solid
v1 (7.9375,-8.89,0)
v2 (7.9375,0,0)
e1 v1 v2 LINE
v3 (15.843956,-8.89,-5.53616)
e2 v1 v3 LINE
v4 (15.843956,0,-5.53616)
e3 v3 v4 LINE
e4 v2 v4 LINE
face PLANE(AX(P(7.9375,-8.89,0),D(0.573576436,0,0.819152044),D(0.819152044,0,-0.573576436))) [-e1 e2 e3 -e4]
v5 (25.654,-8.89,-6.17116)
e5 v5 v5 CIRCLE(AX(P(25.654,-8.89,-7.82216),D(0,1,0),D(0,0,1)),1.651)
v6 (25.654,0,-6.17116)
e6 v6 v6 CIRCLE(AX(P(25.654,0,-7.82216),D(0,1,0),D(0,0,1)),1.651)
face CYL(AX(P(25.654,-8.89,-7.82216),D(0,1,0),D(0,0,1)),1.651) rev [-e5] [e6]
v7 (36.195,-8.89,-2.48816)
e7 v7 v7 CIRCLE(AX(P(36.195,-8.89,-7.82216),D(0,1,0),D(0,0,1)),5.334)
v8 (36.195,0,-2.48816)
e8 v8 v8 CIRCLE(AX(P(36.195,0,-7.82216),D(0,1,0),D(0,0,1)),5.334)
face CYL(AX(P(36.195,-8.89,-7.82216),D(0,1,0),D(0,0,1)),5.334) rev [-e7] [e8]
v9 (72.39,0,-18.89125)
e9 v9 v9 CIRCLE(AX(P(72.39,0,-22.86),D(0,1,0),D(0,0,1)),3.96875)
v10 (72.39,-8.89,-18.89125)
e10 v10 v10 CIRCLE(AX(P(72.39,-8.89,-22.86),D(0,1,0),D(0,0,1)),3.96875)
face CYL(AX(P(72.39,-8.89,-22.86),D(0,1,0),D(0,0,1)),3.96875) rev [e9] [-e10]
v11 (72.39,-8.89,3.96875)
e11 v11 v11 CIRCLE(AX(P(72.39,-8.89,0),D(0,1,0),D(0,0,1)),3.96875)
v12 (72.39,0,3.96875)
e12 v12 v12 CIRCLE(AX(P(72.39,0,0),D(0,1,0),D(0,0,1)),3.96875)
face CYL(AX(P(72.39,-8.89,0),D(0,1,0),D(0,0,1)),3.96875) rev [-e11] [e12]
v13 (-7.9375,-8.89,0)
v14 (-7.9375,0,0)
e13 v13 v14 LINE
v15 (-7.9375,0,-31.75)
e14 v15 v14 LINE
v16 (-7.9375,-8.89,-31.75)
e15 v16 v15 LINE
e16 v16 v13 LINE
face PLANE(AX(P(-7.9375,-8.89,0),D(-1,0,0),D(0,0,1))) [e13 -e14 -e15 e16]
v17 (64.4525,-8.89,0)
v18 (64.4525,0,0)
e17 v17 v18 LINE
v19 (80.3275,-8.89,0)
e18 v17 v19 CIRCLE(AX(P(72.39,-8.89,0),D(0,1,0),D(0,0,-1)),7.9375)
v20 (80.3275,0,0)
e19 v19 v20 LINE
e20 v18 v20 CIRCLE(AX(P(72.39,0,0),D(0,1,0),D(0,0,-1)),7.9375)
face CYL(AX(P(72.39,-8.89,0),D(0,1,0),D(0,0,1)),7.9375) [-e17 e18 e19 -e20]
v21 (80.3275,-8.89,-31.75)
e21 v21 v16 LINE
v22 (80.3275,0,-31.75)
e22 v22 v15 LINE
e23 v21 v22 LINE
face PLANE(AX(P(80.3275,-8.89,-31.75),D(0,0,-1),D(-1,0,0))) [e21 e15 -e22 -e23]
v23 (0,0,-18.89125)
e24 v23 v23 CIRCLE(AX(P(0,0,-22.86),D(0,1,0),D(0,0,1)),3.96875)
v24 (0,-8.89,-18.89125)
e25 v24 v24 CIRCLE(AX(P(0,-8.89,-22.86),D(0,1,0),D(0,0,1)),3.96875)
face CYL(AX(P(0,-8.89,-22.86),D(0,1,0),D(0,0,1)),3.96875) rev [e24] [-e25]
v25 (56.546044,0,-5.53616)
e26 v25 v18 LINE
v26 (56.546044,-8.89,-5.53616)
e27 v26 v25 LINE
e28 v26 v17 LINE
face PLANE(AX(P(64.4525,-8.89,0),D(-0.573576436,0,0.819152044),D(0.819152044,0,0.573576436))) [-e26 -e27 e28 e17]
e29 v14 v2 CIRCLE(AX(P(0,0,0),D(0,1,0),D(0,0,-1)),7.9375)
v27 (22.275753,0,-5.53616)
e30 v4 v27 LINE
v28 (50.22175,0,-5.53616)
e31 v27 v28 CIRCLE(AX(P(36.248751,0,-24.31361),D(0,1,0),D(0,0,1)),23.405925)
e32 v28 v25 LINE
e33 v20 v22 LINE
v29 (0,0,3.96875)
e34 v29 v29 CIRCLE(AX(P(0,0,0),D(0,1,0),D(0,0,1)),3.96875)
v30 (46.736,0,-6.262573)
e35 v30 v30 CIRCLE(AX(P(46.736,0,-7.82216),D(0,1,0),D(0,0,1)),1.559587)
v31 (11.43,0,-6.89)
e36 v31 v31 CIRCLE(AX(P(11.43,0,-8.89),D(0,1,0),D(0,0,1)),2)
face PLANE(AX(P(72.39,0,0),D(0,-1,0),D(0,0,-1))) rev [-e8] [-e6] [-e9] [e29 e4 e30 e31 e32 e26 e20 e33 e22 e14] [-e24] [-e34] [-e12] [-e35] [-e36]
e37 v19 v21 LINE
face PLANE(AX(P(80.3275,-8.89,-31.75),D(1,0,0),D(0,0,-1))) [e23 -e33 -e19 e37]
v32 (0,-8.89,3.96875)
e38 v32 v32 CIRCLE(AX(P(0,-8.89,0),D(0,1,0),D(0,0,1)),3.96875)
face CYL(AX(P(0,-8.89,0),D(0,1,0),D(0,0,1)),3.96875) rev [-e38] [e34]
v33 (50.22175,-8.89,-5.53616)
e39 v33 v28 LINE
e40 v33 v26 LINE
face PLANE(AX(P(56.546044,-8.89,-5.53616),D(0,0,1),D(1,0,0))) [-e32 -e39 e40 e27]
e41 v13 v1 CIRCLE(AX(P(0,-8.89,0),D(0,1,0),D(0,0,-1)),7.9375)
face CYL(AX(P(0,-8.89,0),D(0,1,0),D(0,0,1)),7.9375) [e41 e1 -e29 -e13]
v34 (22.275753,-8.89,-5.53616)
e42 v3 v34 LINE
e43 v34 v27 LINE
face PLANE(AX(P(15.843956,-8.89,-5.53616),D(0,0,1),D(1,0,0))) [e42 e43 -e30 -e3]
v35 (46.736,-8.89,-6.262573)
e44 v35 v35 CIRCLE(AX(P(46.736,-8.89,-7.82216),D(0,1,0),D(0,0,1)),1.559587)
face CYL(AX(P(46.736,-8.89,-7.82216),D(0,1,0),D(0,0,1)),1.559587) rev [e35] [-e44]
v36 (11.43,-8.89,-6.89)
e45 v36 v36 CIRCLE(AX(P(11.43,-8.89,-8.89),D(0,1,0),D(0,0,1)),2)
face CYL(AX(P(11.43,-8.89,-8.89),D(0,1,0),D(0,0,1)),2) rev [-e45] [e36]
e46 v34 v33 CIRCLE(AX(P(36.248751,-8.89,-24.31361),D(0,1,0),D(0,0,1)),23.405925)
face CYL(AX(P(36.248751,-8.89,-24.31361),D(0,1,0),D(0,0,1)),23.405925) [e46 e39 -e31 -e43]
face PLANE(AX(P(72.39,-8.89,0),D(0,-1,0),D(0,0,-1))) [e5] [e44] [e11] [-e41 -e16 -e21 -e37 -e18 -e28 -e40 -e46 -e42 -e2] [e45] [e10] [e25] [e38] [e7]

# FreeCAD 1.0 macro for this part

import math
import FreeCAD as App
import Part
import Sketcher
from FreeCAD import Vector
Q = App.Units.Quantity

doc = App.newDocument("Part")
body = doc.addObject("PartDesign::Body", "Body")

# Sketch on XZ plane
sketch1 = doc.addObject("Sketcher::SketchObject", "Sketch")
body.addObject(sketch1)
sketch1.AttachmentSupport = (doc.XZ_Plane, [""])
sketch1.MapMode = "FlatFace"
sketch1.addGeometry([
    Part.LineSegment(Vector(80.3275, -31.75, 0), Vector(-7.9375, -31.75, 0)),  # 0
    Part.LineSegment(Vector(-7.9375, -31.75, 0), Vector(-7.9375, 0, 0)),  # 1
    Part.ArcOfCircle(Part.Circle(Vector(0, 0, 0), Vector(0, 0, 1), 7.9375), math.radians(0), math.radians(180)),  # 2
    Part.LineSegment(Vector(7.9375, 0, 0), Vector(15.843956, -5.53616, 0)),  # 3
    Part.LineSegment(Vector(15.843956, -5.53616, 0), Vector(22.275753, -5.53616, 0)),  # 4
    Part.ArcOfCircle(Part.Circle(Vector(36.248751, -24.31361, 0), Vector(0, 0, 1), 23.405925), math.radians(53.345695), math.radians(126.654305)),  # 5
    Part.LineSegment(Vector(50.22175, -5.53616, 0), Vector(56.546044, -5.53616, 0)),  # 6
    Part.LineSegment(Vector(56.546044, -5.53616, 0), Vector(64.4525, 0, 0)),  # 7
    Part.ArcOfCircle(Part.Circle(Vector(72.39, 0, 0), Vector(0, 0, 1), 7.9375), math.radians(0), math.radians(180)),  # 8
    Part.LineSegment(Vector(80.3275, 0, 0), Vector(80.3275, -31.75, 0)),  # 9
    Part.Circle(Vector(0, 0, 0), Vector(0, 0, 1), 3.96875),  # 10
    Part.Circle(Vector(11.43, -8.89, 0), Vector(0, 0, 1), 2),  # 11
    Part.Circle(Vector(25.654, -7.82216, 0), Vector(0, 0, 1), 1.651),  # 12
    Part.Circle(Vector(72.39, 0, 0), Vector(0, 0, 1), 3.96875),  # 13
    Part.Circle(Vector(36.195, -7.82216, 0), Vector(0, 0, 1), 5.334),  # 14
    Part.Circle(Vector(46.736, -7.82216, 0), Vector(0, 0, 1), 1.559587),  # 15
    Part.Circle(Vector(0, -22.86, 0), Vector(0, 0, 1), 3.96875),  # 16
    Part.Circle(Vector(72.39, -22.86, 0), Vector(0, 0, 1), 3.96875),  # 17
], False)
sketch1.addConstraint([
    Sketcher.Constraint("Coincident", 0, 2, 1, 1),
    Sketcher.Constraint("Tangent", 1, 2, 2, 2),
    Sketcher.Constraint("Coincident", 2, 1, 3, 1),
    Sketcher.Constraint("Coincident", 3, 2, 4, 1),
    Sketcher.Constraint("Coincident", 4, 2, 5, 2),
    Sketcher.Constraint("Coincident", 5, 1, 6, 1),
    Sketcher.Constraint("Coincident", 6, 2, 7, 1),
    Sketcher.Constraint("Coincident", 7, 2, 8, 2),
    Sketcher.Constraint("Tangent", 8, 1, 9, 1),
    Sketcher.Constraint("Coincident", 9, 2, 0, 1),
    Sketcher.Constraint("Horizontal", 0),
    Sketcher.Constraint("Vertical", 1),
    Sketcher.Constraint("Horizontal", 4),
    Sketcher.Constraint("Horizontal", 6),
    Sketcher.Constraint("Vertical", 9),
    Sketcher.Constraint("Coincident", 2, 3, -1, 1),
    Sketcher.Constraint("Coincident", 10, 3, -1, 1),
    Sketcher.Constraint("Coincident", 13, 3, 8, 3),
    Sketcher.Constraint("Equal", 2, 8),
    Sketcher.Constraint("Equal", 10, 13),
    Sketcher.Constraint("Equal", 13, 16),
    Sketcher.Constraint("Equal", 16, 17),
    Sketcher.Constraint("PointOnObject", 8, 3, -1),
    Sketcher.Constraint("PointOnObject", 16, 3, -2),
    Sketcher.Constraint("PointOnObject", 2, 1, -1),
    Sketcher.Constraint("PointOnObject", 7, 2, -1),
    Sketcher.Constraint("Horizontal", 12, 3, 14, 3),
    Sketcher.Constraint("Horizontal", 14, 3, 15, 3),
    Sketcher.Constraint("Horizontal", 16, 3, 17, 3),
    Sketcher.Constraint("Horizontal", 4, 2, 5, 1),
    Sketcher.Constraint("Vertical", 13, 3, 17, 3),
    Sketcher.Constraint("Equal", 3, 7),
    Sketcher.Constraint("Diameter", 12, Q("0.13 in")),
    Sketcher.Constraint("Diameter", 14, Q("0.42 in")),
    Sketcher.Constraint("Diameter", 10, Q("0.3125 in")),
    Sketcher.Constraint("Angle", 3, Q("-35 deg")),
    Sketcher.Constraint("Radius", 2, Q("0.3125 in")),
    Sketcher.Constraint("DistanceY", 1, 1, 1, 2, Q("1.25 in")),
    Sketcher.Constraint("DistanceY", 16, 3, -1, 1, Q("0.9 in")),
    Sketcher.Constraint("DistanceX", 11, 3, 8, 3, Q("2.4 in")),
    Sketcher.Constraint("DistanceY", 0, 2, 11, 3, Q("0.9 in")),
    Sketcher.Constraint("Distance", 3, Q("0.38 in")),
    Sketcher.Constraint("Diameter", 11, Q("4 mm")),
    Sketcher.Constraint("DistanceX", 0, 2, 0, 1, Q("3.475 in")),
    Sketcher.Constraint("DistanceX", -1, 1, 12, 3, Q("1.01 in")),
    Sketcher.Constraint("DistanceX", -1, 1, 15, 3, Q("1.84 in")),
    Sketcher.Constraint("DistanceY", 12, 3, 3, 2, Q("0.09 in")),
    Sketcher.Constraint("DistanceX", -1, 1, 14, 3, Q("1.425 in")),
    Sketcher.Constraint("Diameter", 15, Q("3.119174 mm")),
    Sketcher.Constraint("Radius", 5, Q("23.405925 mm")),
    Sketcher.Constraint("DistanceX", 5, 3, 5, 1, Q("13.972998 mm")),
    Sketcher.Constraint("DistanceX", 4, 1, 4, 2, Q("6.431798 mm")),
])
pad1 = doc.addObject("PartDesign::Pad", "Pad")
body.addObject(pad1)
pad1.Profile = sketch1
pad1.Length = Q("0.35 in")

doc.recompute()
